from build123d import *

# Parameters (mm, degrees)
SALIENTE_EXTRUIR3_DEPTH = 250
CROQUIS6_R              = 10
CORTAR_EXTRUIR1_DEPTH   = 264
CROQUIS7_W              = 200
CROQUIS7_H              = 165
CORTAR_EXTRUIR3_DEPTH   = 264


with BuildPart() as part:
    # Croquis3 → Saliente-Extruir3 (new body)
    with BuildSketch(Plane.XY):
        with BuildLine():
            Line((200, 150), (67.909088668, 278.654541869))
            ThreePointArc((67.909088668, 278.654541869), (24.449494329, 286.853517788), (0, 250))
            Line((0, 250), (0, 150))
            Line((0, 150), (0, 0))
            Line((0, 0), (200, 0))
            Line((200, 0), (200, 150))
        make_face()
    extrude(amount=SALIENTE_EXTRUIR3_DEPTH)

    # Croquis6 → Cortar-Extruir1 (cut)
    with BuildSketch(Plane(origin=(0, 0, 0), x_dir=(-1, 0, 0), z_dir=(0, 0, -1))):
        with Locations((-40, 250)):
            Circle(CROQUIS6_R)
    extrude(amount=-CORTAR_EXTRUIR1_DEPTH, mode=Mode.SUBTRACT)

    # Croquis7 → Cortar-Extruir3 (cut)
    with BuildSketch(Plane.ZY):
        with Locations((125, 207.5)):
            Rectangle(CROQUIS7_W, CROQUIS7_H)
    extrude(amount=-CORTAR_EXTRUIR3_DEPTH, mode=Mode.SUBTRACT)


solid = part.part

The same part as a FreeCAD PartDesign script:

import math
import FreeCAD as App
import Part
import Sketcher

V = App.Vector

doc = App.newDocument("Part")
body = doc.addObject("PartDesign::Body", "Body")

# Sketch on XY plane
sketch1 = doc.addObject("Sketcher::SketchObject", "Sketch")
body.addObject(sketch1)
sketch1.AttachmentSupport = (doc.XY_Plane, [""])
sketch1.MapMode = "FlatFace"
sketch1.addGeometry([
    Part.LineSegment(V(200, 150, 0), V(68, 279, 0)),  # 0
    Part.ArcOfCircle(Part.Circle(V(40, 250, 0), V(0, 0, 1), 40), math.radians(46), math.radians(180)),  # 1
    Part.LineSegment(V(0, 250, 0), V(0, 0, 0)),  # 2
    Part.LineSegment(V(0, 0, 0), V(200, 0, 0)),  # 3
    Part.LineSegment(V(200, 0, 0), V(200, 150, 0)),  # 4
], False)
sketch1.addConstraint([
    Sketcher.Constraint("Tangent", 0, 2, 1, 1),
    Sketcher.Constraint("Tangent", 1, 2, 2, 1),
    Sketcher.Constraint("Coincident", 2, 2, 3, 1),
    Sketcher.Constraint("Coincident", 3, 2, 4, 1),
    Sketcher.Constraint("Coincident", 4, 2, 0, 1),
    Sketcher.Constraint("Vertical", 2),
    Sketcher.Constraint("Horizontal", 3),
    Sketcher.Constraint("Vertical", 4),
    Sketcher.Constraint("Coincident", 2, 2, -1, 1),
    Sketcher.Constraint("Radius", 1, 40.0),
    Sketcher.Constraint("DistanceX", 3, 1, 3, 2, 200.0),
    Sketcher.Constraint("DistanceY", 2, 2, 2, 1, 250.0),
    Sketcher.Constraint("DistanceY", 4, 1, 4, 2, 150.0),
])
pad1 = doc.addObject("PartDesign::Pad", "Pad")
body.addObject(pad1)
pad1.Profile = sketch1
pad1.Length = 250

# Sketch on XY plane
sketch2 = doc.addObject("Sketcher::SketchObject", "Sketch001")
body.addObject(sketch2)
sketch2.AttachmentSupport = (doc.XY_Plane, [""])
sketch2.MapMode = "FlatFace"
sketch2.addGeometry(Part.Circle(V(40, 250, 0), V(0, 0, 1), 10), False)
sketch2.addConstraint([
    Sketcher.Constraint("Diameter", 0, 20.0),
    Sketcher.Constraint("DistanceX", -1, 1, 0, 3, 40.0),
    Sketcher.Constraint("DistanceY", -1, 1, 0, 3, 250.0),
])
pocket1 = doc.addObject("PartDesign::Pocket", "Pocket")
body.addObject(pocket1)
pocket1.Profile = sketch2
pocket1.Length = 264
pocket1.Reversed = True

# Sketch on YZ plane
sketch3 = doc.addObject("Sketcher::SketchObject", "Sketch002")
body.addObject(sketch3)
sketch3.AttachmentSupport = (doc.YZ_Plane, [""])
sketch3.MapMode = "FlatFace"
sketch3.addGeometry([
    Part.LineSegment(V(290, 25, 0), V(125, 25, 0)),
    Part.LineSegment(V(125, 25, 0), V(125, 225, 0)),
    Part.LineSegment(V(125, 225, 0), V(290, 225, 0)),
    Part.LineSegment(V(290, 225, 0), V(290, 25, 0)),
], False)
sketch3.addConstraint([
    Sketcher.Constraint("Coincident", 0, 2, 1, 1),
    Sketcher.Constraint("Coincident", 1, 2, 2, 1),
    Sketcher.Constraint("Coincident", 2, 2, 3, 1),
    Sketcher.Constraint("Coincident", 3, 2, 0, 1),
    Sketcher.Constraint("Horizontal", 0),
    Sketcher.Constraint("Vertical", 1),
    Sketcher.Constraint("Horizontal", 2),
    Sketcher.Constraint("Vertical", 3),
    Sketcher.Constraint("DistanceX", 0, 2, 0, 1, 165.0),
    Sketcher.Constraint("DistanceY", 1, 1, 1, 2, 200.0),
    Sketcher.Constraint("DistanceX", -1, 1, 0, 2, 125.0),
    Sketcher.Constraint("DistanceY", -1, 1, 0, 2, 25.0),
])
pocket2 = doc.addObject("PartDesign::Pocket", "Pocket001")
body.addObject(pocket2)
pocket2.Profile = sketch3
pocket2.Length = 264
pocket2.Reversed = True

doc.recompute()
